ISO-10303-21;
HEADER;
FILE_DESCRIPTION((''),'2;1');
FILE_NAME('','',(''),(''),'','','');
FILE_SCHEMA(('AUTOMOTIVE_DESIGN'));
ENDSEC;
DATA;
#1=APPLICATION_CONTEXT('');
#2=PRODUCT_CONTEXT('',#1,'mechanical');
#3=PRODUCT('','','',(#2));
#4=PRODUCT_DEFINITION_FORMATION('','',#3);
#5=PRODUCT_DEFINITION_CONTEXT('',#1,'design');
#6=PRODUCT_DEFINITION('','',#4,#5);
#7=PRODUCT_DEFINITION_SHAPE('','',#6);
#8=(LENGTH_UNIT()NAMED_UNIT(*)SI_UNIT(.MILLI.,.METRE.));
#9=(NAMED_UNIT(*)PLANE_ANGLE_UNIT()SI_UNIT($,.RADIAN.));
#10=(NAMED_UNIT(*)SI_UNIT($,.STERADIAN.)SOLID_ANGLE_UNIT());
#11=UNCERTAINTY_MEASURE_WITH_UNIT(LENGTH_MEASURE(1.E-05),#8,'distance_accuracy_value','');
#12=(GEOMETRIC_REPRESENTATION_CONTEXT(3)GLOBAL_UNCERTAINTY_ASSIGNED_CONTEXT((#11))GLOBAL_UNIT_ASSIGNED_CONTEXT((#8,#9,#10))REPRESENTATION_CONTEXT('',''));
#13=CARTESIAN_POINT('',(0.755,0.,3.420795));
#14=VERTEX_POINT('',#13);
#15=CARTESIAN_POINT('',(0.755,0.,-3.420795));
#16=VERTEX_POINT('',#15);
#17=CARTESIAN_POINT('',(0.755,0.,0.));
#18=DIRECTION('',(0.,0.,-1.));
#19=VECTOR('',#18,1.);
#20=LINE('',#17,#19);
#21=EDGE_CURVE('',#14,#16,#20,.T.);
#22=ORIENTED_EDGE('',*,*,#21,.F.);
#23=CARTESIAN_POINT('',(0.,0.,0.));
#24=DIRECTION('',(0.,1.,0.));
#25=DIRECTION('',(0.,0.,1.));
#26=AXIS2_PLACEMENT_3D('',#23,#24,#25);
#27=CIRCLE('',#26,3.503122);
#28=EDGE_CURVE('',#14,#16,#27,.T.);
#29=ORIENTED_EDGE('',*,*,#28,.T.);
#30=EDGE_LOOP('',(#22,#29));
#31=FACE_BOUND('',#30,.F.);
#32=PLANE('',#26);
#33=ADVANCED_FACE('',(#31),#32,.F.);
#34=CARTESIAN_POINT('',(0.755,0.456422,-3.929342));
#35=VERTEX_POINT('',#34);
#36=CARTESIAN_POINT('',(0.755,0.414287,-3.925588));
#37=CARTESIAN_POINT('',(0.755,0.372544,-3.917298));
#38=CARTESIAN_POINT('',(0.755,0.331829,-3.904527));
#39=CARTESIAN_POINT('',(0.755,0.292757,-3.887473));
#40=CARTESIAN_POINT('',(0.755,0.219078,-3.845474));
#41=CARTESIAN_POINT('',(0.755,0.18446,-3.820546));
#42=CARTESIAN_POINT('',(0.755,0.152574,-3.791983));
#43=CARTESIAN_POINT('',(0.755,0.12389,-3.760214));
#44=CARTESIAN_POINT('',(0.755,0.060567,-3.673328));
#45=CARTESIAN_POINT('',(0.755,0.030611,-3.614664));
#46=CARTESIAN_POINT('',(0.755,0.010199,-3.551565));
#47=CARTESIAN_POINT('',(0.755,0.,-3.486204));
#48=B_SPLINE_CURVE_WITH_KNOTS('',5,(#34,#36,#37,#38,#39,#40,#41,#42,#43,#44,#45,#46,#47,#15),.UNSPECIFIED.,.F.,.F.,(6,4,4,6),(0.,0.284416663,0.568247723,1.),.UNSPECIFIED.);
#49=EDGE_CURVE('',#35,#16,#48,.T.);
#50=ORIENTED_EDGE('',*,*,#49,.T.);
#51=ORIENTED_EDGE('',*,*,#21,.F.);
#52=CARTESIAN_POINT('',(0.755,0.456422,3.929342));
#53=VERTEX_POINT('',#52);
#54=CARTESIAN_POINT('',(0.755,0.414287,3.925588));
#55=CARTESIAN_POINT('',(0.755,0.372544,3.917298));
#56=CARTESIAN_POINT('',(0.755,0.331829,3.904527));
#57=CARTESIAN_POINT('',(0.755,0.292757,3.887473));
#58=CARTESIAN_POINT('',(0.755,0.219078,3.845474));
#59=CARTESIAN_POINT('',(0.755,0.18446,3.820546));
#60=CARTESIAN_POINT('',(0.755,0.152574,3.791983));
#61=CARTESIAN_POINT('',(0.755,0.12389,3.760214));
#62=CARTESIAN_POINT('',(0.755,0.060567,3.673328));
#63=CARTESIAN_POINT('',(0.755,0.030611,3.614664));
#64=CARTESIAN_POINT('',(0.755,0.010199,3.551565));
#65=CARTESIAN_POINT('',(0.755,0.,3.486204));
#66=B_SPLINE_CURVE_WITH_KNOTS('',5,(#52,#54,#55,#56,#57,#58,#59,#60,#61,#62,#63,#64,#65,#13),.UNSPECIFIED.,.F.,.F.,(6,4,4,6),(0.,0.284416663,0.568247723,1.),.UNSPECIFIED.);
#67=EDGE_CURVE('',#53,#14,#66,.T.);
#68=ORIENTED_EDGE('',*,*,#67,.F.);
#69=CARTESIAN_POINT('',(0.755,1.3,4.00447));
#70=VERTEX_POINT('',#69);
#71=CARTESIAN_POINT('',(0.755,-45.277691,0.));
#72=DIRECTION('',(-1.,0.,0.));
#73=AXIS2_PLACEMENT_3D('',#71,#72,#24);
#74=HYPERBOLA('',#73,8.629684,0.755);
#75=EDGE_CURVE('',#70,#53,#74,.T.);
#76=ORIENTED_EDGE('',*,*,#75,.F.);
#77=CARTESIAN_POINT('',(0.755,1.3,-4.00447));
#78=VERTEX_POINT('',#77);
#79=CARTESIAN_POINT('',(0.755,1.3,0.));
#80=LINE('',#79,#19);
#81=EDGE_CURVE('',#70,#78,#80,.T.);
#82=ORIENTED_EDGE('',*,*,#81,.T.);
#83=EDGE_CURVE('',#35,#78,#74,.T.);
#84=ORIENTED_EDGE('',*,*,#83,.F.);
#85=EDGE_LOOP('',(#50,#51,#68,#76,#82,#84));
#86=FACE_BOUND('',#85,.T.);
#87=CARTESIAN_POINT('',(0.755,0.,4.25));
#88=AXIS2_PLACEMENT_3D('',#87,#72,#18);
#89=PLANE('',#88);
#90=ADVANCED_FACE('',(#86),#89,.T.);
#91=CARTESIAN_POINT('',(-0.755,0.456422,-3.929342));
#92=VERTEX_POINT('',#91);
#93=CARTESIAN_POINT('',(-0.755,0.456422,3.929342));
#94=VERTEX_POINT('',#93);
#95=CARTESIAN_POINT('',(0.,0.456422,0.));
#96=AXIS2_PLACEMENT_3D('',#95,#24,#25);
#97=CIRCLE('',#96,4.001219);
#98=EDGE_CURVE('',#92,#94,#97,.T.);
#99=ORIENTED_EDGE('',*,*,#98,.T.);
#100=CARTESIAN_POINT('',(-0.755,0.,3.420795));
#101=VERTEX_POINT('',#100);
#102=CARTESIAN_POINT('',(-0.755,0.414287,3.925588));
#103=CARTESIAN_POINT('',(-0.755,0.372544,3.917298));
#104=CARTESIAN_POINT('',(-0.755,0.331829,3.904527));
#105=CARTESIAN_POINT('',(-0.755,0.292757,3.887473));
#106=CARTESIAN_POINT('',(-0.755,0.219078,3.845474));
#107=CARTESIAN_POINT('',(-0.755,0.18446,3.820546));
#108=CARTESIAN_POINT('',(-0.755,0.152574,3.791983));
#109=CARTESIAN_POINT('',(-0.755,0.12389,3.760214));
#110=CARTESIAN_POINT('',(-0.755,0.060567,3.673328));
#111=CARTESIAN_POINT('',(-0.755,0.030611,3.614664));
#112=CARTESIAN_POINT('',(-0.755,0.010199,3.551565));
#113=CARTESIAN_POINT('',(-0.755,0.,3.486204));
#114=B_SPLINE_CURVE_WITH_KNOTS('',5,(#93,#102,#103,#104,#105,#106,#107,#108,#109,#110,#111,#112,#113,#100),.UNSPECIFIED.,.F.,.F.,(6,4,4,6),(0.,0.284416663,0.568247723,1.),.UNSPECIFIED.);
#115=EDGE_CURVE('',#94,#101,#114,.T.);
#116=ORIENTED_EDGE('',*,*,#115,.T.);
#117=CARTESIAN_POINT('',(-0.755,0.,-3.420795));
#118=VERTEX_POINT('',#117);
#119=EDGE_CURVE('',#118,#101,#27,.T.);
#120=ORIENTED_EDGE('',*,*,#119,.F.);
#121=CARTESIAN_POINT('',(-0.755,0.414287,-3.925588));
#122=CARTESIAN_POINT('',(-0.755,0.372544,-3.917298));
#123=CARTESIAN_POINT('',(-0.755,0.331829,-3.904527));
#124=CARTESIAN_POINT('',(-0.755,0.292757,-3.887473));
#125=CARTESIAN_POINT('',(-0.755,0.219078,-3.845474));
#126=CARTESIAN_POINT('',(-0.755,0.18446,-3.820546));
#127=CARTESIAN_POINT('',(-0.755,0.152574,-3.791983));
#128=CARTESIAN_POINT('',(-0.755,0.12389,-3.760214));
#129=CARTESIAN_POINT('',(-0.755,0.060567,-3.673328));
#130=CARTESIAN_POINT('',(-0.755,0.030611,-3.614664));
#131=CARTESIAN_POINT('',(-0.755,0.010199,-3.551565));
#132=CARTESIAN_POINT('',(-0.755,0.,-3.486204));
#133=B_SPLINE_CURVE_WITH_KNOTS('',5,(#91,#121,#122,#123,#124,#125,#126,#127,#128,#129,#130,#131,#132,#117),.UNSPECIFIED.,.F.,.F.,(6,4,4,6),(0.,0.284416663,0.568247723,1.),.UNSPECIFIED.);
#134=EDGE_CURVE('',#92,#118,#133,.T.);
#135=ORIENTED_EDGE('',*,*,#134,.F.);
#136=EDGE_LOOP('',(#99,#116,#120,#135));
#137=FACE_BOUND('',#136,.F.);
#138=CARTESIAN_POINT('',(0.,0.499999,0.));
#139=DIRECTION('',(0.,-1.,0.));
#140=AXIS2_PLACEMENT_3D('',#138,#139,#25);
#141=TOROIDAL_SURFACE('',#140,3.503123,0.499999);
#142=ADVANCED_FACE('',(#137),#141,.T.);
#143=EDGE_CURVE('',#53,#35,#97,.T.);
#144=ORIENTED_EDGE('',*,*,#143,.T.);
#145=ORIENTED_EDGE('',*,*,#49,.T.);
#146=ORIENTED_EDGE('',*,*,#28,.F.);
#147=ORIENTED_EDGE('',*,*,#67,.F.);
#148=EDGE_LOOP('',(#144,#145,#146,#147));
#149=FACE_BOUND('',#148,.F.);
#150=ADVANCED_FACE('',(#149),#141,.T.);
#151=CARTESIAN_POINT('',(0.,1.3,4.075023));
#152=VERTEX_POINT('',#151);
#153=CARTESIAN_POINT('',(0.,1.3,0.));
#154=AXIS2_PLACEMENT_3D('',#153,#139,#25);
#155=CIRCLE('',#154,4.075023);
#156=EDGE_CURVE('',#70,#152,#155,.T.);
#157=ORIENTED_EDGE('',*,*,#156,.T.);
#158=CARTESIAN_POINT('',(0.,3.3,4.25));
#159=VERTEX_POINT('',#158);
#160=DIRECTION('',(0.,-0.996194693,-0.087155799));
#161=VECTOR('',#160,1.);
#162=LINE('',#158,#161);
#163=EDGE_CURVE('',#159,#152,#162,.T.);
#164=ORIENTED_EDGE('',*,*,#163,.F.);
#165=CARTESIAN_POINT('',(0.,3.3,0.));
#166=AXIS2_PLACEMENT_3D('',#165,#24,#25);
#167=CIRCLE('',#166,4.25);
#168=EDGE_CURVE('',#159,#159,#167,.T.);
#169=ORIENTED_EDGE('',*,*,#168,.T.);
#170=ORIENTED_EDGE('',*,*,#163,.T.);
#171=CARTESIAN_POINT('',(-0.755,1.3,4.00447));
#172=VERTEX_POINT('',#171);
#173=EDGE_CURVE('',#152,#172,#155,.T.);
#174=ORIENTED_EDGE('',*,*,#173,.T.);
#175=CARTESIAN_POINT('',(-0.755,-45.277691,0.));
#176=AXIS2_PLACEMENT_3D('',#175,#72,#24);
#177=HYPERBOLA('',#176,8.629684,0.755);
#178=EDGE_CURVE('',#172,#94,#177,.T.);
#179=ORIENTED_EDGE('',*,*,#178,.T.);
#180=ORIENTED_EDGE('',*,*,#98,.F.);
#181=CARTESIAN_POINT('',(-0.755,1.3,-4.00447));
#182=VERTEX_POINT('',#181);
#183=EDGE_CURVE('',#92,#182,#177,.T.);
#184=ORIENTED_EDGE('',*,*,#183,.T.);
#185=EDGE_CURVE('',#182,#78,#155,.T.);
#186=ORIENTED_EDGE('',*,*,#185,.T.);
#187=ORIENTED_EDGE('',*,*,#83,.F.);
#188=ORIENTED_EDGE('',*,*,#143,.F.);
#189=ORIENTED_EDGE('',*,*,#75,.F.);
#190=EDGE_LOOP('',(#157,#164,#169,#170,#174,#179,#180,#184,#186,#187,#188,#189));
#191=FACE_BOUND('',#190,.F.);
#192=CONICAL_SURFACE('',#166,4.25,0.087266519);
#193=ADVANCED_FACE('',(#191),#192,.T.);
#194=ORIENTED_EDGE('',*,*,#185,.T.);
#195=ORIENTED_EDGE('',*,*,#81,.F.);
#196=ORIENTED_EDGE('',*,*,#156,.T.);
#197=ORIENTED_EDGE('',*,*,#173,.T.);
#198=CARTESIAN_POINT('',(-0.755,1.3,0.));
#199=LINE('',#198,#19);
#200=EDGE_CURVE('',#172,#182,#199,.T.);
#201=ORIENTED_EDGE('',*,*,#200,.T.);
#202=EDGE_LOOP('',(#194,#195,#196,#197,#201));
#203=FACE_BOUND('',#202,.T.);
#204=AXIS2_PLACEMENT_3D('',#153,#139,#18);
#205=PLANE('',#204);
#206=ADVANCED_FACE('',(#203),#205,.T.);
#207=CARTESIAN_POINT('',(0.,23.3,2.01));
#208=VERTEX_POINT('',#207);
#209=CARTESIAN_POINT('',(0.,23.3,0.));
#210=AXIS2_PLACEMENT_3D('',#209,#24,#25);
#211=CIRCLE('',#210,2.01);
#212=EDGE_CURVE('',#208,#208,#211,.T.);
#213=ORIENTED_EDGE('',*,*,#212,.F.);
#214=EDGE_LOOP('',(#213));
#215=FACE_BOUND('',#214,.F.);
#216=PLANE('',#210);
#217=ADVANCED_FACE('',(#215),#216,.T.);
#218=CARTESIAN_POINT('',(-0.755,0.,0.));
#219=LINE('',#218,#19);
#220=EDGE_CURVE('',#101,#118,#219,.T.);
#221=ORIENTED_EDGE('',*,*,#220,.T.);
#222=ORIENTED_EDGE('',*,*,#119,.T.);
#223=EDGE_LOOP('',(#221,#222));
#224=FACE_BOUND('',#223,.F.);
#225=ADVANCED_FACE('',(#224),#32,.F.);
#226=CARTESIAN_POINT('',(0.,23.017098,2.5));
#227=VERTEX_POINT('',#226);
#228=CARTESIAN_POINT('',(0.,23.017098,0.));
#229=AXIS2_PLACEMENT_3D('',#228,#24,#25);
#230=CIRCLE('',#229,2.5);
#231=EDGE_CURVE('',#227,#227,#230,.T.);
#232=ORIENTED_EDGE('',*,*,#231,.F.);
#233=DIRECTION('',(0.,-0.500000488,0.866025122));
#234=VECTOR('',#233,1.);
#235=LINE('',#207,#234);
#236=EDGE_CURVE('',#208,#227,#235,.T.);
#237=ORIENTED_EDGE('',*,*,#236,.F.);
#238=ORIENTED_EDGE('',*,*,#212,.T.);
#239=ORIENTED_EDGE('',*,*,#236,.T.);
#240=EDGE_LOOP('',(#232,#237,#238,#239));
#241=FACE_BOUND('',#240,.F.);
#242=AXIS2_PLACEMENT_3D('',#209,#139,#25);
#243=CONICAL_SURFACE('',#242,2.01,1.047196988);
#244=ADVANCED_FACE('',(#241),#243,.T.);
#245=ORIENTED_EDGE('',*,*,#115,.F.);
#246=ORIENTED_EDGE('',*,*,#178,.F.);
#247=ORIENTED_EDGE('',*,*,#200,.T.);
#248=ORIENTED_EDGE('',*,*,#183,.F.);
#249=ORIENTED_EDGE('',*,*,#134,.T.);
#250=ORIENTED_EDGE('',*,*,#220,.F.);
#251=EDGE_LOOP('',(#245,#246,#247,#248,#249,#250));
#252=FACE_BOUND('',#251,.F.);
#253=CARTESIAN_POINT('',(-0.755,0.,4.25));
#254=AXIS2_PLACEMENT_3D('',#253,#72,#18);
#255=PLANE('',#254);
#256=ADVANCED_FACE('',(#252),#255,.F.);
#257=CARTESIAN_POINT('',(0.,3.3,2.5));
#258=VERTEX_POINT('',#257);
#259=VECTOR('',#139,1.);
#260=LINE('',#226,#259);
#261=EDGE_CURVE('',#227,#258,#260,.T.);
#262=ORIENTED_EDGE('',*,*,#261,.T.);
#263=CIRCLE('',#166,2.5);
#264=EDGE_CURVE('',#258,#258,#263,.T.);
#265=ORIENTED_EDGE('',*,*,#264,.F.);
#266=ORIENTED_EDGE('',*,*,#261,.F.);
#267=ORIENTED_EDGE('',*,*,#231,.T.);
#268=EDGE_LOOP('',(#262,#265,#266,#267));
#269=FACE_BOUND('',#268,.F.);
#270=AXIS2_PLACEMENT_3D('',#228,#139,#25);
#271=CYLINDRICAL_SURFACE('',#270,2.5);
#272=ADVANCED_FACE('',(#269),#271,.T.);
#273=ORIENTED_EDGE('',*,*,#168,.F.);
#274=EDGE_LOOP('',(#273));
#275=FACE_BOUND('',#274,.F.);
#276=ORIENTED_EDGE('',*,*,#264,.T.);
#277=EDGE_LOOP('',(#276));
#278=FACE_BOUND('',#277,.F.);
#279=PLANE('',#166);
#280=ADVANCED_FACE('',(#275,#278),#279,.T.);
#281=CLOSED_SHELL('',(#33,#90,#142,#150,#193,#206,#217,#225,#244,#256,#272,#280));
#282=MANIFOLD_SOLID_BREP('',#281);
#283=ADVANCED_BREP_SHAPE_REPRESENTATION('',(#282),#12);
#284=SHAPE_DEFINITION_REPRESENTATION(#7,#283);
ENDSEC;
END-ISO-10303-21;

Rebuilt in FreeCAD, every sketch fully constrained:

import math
import FreeCAD as App
import Part
import Sketcher

V = App.Vector
Q = App.Units.Quantity

doc = App.newDocument("Part")
body = doc.addObject("PartDesign::Body", "Body")

sketch1 = body.newObject("Sketcher::SketchObject", "Sketch")
sketch1.AttachmentSupport = (doc.getObject("YZ_Plane"), [""])
sketch1.MapMode = "FlatFace"
sketch1.addGeometry(Part.LineSegment(V(0, 3.5, 0), V(0, 0, 0)), False)
sketch1.addGeometry(Part.LineSegment(V(0, 0, 0), V(23.3, 0, 0)), False)
sketch1.addGeometry(Part.LineSegment(V(23.3, 0, 0), V(23.3, 2.01, 0)), False)
sketch1.addGeometry(Part.LineSegment(V(23.3, 2.01, 0), V(23.02, 2.5, 0)), False)
sketch1.addGeometry(Part.LineSegment(V(23.02, 2.5, 0), V(3.3, 2.5, 0)), False)
sketch1.addGeometry(Part.LineSegment(V(3.3, 2.5, 0), V(3.3, 4.25, 0)), False)
sketch1.addGeometry(Part.LineSegment(V(3.3, 4.25, 0), V(0.46, 4, 0)), False)
sketch1.addGeometry(Part.ArcOfCircle(Part.Circle(V(0.5, 3.5, 0), V(0, 0, 1), 0.5), math.radians(95), math.radians(180)), False)
sketch1.addConstraint(Sketcher.Constraint("Coincident", 0, 2, 1, 1))
sketch1.addConstraint(Sketcher.Constraint("Coincident", 1, 2, 2, 1))
sketch1.addConstraint(Sketcher.Constraint("Coincident", 2, 2, 3, 1))
sketch1.addConstraint(Sketcher.Constraint("Coincident", 3, 2, 4, 1))
sketch1.addConstraint(Sketcher.Constraint("Coincident", 4, 2, 5, 1))
sketch1.addConstraint(Sketcher.Constraint("Coincident", 5, 2, 6, 1))
sketch1.addConstraint(Sketcher.Constraint("Tangent", 6, 2, 7, 1))
sketch1.addConstraint(Sketcher.Constraint("Tangent", 7, 2, 0, 1))
sketch1.addConstraint(Sketcher.Constraint("Vertical", 0))
sketch1.addConstraint(Sketcher.Constraint("Horizontal", 1))
sketch1.addConstraint(Sketcher.Constraint("Vertical", 2))
sketch1.addConstraint(Sketcher.Constraint("Horizontal", 4))
sketch1.addConstraint(Sketcher.Constraint("Vertical", 5))
sketch1.addConstraint(Sketcher.Constraint("Coincident", 0, 2, -1, 1))
sketch1.addConstraint(Sketcher.Constraint("Radius", 7, Q("0.499999 mm")))
sketch1.addConstraint(Sketcher.Constraint("Angle", 6, Q("-174.999997 deg")))
sketch1.addConstraint(Sketcher.Constraint("DistanceX", 1, 1, 1, 2, Q("23.3 mm")))
sketch1.addConstraint(Sketcher.Constraint("DistanceX", 4, 2, 2, 2, Q("20 mm")))
sketch1.addConstraint(Sketcher.Constraint("DistanceY", 2, 1, 2, 2, Q("2.01 mm")))
sketch1.addConstraint(Sketcher.Constraint("DistanceY", 5, 1, 5, 2, Q("1.75 mm")))
sketch1.addConstraint(Sketcher.Constraint("DistanceY", -1, 1, 3, 2, Q("2.5 mm")))
sketch1.addConstraint(Sketcher.Constraint("DistanceX", 4, 2, 4, 1, Q("19.717098 mm")))
revolution = body.newObject("PartDesign::Revolution", "Revolution")
revolution.Profile = sketch1
revolution.ReferenceAxis = (sketch1, ["H_Axis"])
revolution.Angle = 360

sketch2 = body.newObject("Sketcher::SketchObject", "Sketch001")
sketch2.AttachmentSupport = (doc.getObject("XZ_Plane"), [""])
sketch2.MapMode = "FlatFace"
sketch2.addGeometry(Part.LineSegment(V(0.8, 4.2, 0), V(-0.8, 4.2, 0)), False)
sketch2.addGeometry(Part.LineSegment(V(-0.8, 4.2, 0), V(-0.8, -4.2, 0)), False)
sketch2.addGeometry(Part.LineSegment(V(-0.8, -4.2, 0), V(0.8, -4.2, 0)), False)
sketch2.addGeometry(Part.LineSegment(V(0.8, -4.2, 0), V(0.8, 4.2, 0)), False)
sketch2.addConstraint(Sketcher.Constraint("Coincident", 0, 2, 1, 1))
sketch2.addConstraint(Sketcher.Constraint("Coincident", 1, 2, 2, 1))
sketch2.addConstraint(Sketcher.Constraint("Coincident", 2, 2, 3, 1))
sketch2.addConstraint(Sketcher.Constraint("Coincident", 3, 2, 0, 1))
sketch2.addConstraint(Sketcher.Constraint("Horizontal", 0))
sketch2.addConstraint(Sketcher.Constraint("Vertical", 1))
sketch2.addConstraint(Sketcher.Constraint("Horizontal", 2))
sketch2.addConstraint(Sketcher.Constraint("Vertical", 3))
sketch2.addConstraint(Sketcher.Constraint("Symmetric", 0, 2, 2, 2, -1, 1))
sketch2.addConstraint(Sketcher.Constraint("DistanceY", 1, 2, 1, 1, Q("8.5 mm")))
sketch2.addConstraint(Sketcher.Constraint("DistanceX", 0, 2, 0, 1, Q("1.51 mm")))
pocket1 = body.newObject("PartDesign::Pocket", "Pocket")
pocket1.Profile = sketch2
pocket1.Length = 1.3

doc.recompute()
